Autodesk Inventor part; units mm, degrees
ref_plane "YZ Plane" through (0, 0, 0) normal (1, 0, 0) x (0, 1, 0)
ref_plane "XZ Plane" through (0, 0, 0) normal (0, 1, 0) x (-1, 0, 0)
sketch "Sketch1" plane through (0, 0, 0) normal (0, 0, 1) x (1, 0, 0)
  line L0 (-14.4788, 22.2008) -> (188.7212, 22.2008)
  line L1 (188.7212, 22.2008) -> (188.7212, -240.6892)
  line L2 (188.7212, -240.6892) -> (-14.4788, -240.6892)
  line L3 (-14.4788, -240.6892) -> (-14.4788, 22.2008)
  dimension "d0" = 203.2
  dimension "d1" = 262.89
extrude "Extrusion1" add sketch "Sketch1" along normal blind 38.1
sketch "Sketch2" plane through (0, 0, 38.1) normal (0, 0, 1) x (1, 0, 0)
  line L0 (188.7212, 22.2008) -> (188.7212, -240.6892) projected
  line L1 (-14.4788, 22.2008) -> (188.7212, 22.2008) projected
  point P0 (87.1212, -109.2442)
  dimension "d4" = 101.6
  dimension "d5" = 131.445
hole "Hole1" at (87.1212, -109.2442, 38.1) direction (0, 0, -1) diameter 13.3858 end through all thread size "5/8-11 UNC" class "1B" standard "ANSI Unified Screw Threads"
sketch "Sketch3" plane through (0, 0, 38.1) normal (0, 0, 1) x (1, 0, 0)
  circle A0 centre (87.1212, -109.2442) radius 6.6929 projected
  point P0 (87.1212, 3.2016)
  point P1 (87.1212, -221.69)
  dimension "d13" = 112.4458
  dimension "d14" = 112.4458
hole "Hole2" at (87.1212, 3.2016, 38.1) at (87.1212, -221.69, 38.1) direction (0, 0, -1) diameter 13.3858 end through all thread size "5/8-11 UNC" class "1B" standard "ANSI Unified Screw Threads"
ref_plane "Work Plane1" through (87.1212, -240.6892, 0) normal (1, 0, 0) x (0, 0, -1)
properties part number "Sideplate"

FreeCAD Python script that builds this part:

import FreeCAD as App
import Part
import Sketcher
from FreeCAD import Vector
Q = App.Units.Quantity

doc = App.newDocument("Part")
params = doc.addObject("Spreadsheet::Sheet", "Params")
for row, (alias, value) in enumerate([
    ("sketch1_width", "8 in"),
    ("sketch1_height", "10.35 in"),
    ("pad1_length", "1.5 in"),
    ("sketch2_diameter", "0.527 in"),
    ("hole_diameter", "0.527 in"),
    ("sketch3_diameter", "0.527 in"),
    ("hole2_diameter", "0.527 in"),
], start=1):
    params.set(f"A{row}", alias)
    params.set(f"B{row}", "=" + value)
    params.setAlias(f"B{row}", alias)

body = doc.addObject("PartDesign::Body", "Body")

# Sketch on XY plane
sketch1 = body.newObject("Sketcher::SketchObject", "Sketch")
sketch1.AttachmentSupport = (doc.getObject("XY_Plane"), [""])
sketch1.MapMode = "FlatFace"
sketch1.addGeometry([
    Part.LineSegment(Vector(189, 22, 0), Vector(-14, 22, 0)),
    Part.LineSegment(Vector(-14, 22, 0), Vector(-14, -241, 0)),
    Part.LineSegment(Vector(-14, -241, 0), Vector(189, -241, 0)),
    Part.LineSegment(Vector(189, -241, 0), Vector(189, 22, 0)),
], False)
sketch1.addConstraint([
    Sketcher.Constraint("Coincident", 0, 2, 1, 1),
    Sketcher.Constraint("Coincident", 1, 2, 2, 1),
    Sketcher.Constraint("Coincident", 2, 2, 3, 1),
    Sketcher.Constraint("Coincident", 3, 2, 0, 1),
    Sketcher.Constraint("Horizontal", 0),
    Sketcher.Constraint("Vertical", 1),
    Sketcher.Constraint("Horizontal", 2),
    Sketcher.Constraint("Vertical", 3),
    Sketcher.Constraint("DistanceX", 0, 2, 0, 1, Q("8 in")),
    Sketcher.Constraint("DistanceY", 1, 2, 1, 1, Q("10.35 in")),
    Sketcher.Constraint("DistanceX", 0, 2, -1, 1, 14.4788),
    Sketcher.Constraint("DistanceY", -1, 1, 0, 2, 22.2008),
])
sketch1.setExpression("Constraints[8]", "Params.sketch1_width")
sketch1.setExpression("Constraints[9]", "Params.sketch1_height")
pad1 = body.newObject("PartDesign::Pad", "Pad")
pad1.Profile = sketch1
pad1.setExpression("Length", "Params.pad1_length")

# Sketch on XY plane
sketch2 = body.newObject("Sketcher::SketchObject", "Sketch001")
sketch2.AttachmentSupport = (doc.getObject("XY_Plane"), [""])
sketch2.MapMode = "FlatFace"
sketch2.AttachmentOffset = App.Placement(Vector(0, 0, 1.5 * 25.4), App.Rotation())
sketch2.addGeometry(Part.Circle(Vector(87, -109, 0), Vector(0, 0, 1), 7), False)
sketch2.addConstraint([
    Sketcher.Constraint("Diameter", 0, Q("0.527 in")),
    Sketcher.Constraint("DistanceX", -1, 1, 0, 3, 87.1212),
    Sketcher.Constraint("DistanceY", 0, 3, -1, 1, 109.2442),
])
sketch2.setExpression("Constraints[0]", "Params.sketch2_diameter")
doc.recompute()
hole = body.newObject("PartDesign::Hole", "Hole")
hole.Profile = sketch2
hole.ThreadType = "None"
hole.setExpression("Diameter", "Params.hole_diameter")
hole.DepthType = "ThroughAll"

# Sketch on XY plane
sketch3 = body.newObject("Sketcher::SketchObject", "Sketch002")
sketch3.AttachmentSupport = (doc.getObject("XY_Plane"), [""])
sketch3.MapMode = "FlatFace"
sketch3.AttachmentOffset = App.Placement(Vector(0, 0, 1.5 * 25.4), App.Rotation())
sketch3.addGeometry([
    Part.Circle(Vector(87, 3, 0), Vector(0, 0, 1), 7),
    Part.Circle(Vector(87, -222, 0), Vector(0, 0, 1), 7),
], False)
sketch3.addConstraint([
    Sketcher.Constraint("Equal", 0, 1),
    Sketcher.Constraint("Vertical", 0, 3, 1, 3),
    Sketcher.Constraint("Diameter", 0, Q("0.527 in")),
    Sketcher.Constraint("DistanceY", 1, 3, 0, 3, Q("8.854 in")),
    Sketcher.Constraint("DistanceX", -1, 1, 0, 3, 87.1212),
    Sketcher.Constraint("DistanceY", -1, 1, 0, 3, 3.2016),
])
sketch3.setExpression("Constraints[2]", "Params.sketch3_diameter")
doc.recompute()
hole2 = body.newObject("PartDesign::Hole", "Hole001")
hole2.Profile = sketch3
hole2.ThreadType = "None"
hole2.setExpression("Diameter", "Params.hole2_diameter")
hole2.DepthType = "ThroughAll"

doc.recompute()
